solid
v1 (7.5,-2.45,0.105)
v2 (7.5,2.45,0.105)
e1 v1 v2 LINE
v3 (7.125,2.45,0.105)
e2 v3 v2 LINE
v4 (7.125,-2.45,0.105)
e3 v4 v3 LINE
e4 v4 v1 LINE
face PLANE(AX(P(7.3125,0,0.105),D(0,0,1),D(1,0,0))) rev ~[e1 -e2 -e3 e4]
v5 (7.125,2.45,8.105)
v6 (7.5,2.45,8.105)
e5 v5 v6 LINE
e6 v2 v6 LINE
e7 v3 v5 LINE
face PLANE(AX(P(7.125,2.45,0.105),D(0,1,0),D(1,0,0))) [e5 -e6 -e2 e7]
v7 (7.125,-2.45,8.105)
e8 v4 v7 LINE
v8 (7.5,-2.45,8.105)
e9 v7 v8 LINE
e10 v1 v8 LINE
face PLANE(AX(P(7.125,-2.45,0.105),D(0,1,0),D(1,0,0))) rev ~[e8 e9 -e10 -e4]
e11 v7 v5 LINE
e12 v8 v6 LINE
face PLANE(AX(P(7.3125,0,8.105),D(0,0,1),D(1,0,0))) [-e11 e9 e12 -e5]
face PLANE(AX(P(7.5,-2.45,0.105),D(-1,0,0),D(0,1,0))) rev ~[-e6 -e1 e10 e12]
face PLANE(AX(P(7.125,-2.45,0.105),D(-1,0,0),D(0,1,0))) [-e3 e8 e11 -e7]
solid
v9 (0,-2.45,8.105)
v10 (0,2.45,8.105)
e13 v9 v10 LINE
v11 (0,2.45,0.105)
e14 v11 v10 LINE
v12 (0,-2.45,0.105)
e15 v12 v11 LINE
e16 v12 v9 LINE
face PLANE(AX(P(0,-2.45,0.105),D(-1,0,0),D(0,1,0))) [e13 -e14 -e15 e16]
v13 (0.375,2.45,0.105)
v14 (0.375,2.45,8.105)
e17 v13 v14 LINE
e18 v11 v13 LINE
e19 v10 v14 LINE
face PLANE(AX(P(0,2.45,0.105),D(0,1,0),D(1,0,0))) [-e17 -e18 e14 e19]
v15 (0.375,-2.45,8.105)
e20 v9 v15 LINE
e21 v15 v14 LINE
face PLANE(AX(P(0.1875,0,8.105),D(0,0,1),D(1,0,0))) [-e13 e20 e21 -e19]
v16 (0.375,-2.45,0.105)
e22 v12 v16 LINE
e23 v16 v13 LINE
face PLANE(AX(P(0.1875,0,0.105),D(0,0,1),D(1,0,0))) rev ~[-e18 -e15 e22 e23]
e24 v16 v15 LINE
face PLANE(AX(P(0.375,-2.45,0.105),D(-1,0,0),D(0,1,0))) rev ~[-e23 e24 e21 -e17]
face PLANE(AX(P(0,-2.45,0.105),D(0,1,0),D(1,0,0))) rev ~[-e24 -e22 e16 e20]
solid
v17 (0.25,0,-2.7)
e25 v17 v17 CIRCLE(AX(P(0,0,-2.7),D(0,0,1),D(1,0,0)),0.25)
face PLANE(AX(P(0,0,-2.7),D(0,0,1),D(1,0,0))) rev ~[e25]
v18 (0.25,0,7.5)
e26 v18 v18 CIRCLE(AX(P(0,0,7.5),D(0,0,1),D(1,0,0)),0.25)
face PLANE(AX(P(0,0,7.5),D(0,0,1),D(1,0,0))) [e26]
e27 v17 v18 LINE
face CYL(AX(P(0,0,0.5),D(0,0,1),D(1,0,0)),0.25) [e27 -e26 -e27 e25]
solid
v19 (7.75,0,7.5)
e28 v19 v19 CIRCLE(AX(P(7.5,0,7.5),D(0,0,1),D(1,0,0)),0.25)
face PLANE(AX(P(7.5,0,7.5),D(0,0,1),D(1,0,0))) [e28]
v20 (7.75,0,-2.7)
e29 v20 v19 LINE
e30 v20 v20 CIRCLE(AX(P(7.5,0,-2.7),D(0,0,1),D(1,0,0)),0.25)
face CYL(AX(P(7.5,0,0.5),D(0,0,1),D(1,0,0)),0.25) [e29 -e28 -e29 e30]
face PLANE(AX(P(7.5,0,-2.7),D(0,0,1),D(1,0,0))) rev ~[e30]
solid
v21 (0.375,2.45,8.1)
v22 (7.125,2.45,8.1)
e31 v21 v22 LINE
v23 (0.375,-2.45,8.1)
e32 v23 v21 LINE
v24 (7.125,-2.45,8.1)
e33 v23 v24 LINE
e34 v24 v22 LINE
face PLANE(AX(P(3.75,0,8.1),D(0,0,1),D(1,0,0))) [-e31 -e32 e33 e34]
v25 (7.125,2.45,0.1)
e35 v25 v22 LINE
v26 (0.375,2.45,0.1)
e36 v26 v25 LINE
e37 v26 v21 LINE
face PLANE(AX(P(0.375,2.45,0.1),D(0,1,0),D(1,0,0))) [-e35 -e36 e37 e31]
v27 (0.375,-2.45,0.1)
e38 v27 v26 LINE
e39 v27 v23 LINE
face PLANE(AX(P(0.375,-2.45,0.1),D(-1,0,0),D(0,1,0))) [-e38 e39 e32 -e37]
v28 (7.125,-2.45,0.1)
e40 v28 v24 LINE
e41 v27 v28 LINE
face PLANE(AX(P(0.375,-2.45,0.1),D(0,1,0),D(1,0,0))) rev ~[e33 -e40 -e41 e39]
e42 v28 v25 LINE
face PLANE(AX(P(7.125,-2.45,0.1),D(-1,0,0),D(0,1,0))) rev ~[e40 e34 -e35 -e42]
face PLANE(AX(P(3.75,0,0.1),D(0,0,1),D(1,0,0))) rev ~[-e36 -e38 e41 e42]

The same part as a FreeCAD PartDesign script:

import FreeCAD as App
import Part
import Sketcher
Q = App.Units.Quantity


def add_polygon(sketch, points):
    """Adds a closed chain of lines whose ends are joined by coincident constraints."""
    first, n = sketch.GeometryCount, len(points)
    for a, b in zip(points, points[1:] + points[:1]):
        sketch.addGeometry(Part.LineSegment(App.Vector(*a, 0), App.Vector(*b, 0)), False)
    for i in range(n):
        sketch.addConstraint(Sketcher.Constraint("Coincident", first + i, 2, first + (i + 1) % n, 1))

doc = App.newDocument("Part")
body = doc.addObject("PartDesign::Body", "Body")

# Sketch on XY plane
sketch1 = body.newObject("Sketcher::SketchObject", "Sketch")
sketch1.AttachmentSupport = (doc.getObject("XY_Plane"), [""])
sketch1.MapMode = "FlatFace"
sketch1.AttachmentOffset = App.Placement(App.Vector(0, 0, 0.1), App.Rotation())
add_polygon(sketch1, [(0.4, 2.5), (0.4, -2.5), (7.1, -2.5), (7.1, 2.5)])  # lines 0-3
sketch1.addConstraint([
    Sketcher.Constraint("Vertical", 0),
    Sketcher.Constraint("Horizontal", 1),
    Sketcher.Constraint("Vertical", 2),
    Sketcher.Constraint("Horizontal", 3),
    Sketcher.Constraint("DistanceY", 0, 2, 0, 1, Q("4.9 mm")),
    Sketcher.Constraint("DistanceX", 1, 1, 1, 2, Q("6.75 mm")),
    Sketcher.Constraint("DistanceY", 0, 2, -1, 1, Q("2.45 mm")),
    Sketcher.Constraint("DistanceX", -1, 1, 0, 2, Q("0.375 mm")),
])
pad1 = body.newObject("PartDesign::Pad", "Pad")
pad1.Profile = sketch1
pad1.Length = 8
body2 = doc.addObject("PartDesign::Body", "Body001")
body2.AllowCompound = True

# Sketch on XY plane
sketch2 = body2.newObject("Sketcher::SketchObject", "Sketch001")
sketch2.AttachmentSupport = (doc.getObject("XY_Plane001"), [""])
sketch2.MapMode = "FlatFace"
sketch2.AttachmentOffset = App.Placement(App.Vector(0, 0, 0.5), App.Rotation())
sketch2.addGeometry([
    Part.Circle(App.Vector(0, 0, 0), App.Vector(0, 0, 1), 0.25),
    Part.Circle(App.Vector(7.5, 0, 0), App.Vector(0, 0, 1), 0.25),
], False)
sketch2.addConstraint([
    Sketcher.Constraint("Coincident", 0, 3, -1, 1),
    Sketcher.Constraint("Equal", 0, 1),
    Sketcher.Constraint("PointOnObject", 1, 3, -1),
    Sketcher.Constraint("Diameter", 0, Q("0.5 mm")),
    Sketcher.Constraint("DistanceX", -1, 1, 1, 3, Q("7.5 mm")),
])
pad2 = body2.newObject("PartDesign::Pad", "Pad001")
pad2.Profile = sketch2
pad2.Type = "TwoLengths"
pad2.Length = 7
pad2.Length2 = 3.2
body3 = doc.addObject("PartDesign::Body", "Body002")
body3.AllowCompound = True

# Sketch on XY plane
sketch3 = body3.newObject("Sketcher::SketchObject", "Sketch002")
sketch3.AttachmentSupport = (doc.getObject("XY_Plane002"), [""])
sketch3.MapMode = "FlatFace"
sketch3.AttachmentOffset = App.Placement(App.Vector(0, 0, 0.105), App.Rotation())
add_polygon(sketch3, [(0, 2.45), (0, -2.45), (0.38, -2.45), (0.38, 2.45)])  # lines 0-3
add_polygon(sketch3, [(7.12, 2.45), (7.12, -2.45), (7.5, -2.45), (7.5, 2.45)])  # lines 4-7
sketch3.addConstraint([
    Sketcher.Constraint("Vertical", 0),
    Sketcher.Constraint("Horizontal", 1),
    Sketcher.Constraint("Vertical", 2),
    Sketcher.Constraint("Horizontal", 3),
    Sketcher.Constraint("Vertical", 4),
    Sketcher.Constraint("Horizontal", 5),
    Sketcher.Constraint("Vertical", 6),
    Sketcher.Constraint("Horizontal", 7),
    Sketcher.Constraint("Symmetric", 0, 2, 3, 2, -1, 1),
    Sketcher.Constraint("Horizontal", 1, 2, 4, 2),
    Sketcher.Constraint("Horizontal", 3, 2, 6, 2),
    Sketcher.Constraint("Equal", 3, 5),
    Sketcher.Constraint("DistanceY", 0, 2, 0, 1, Q("4.9 mm")),
    Sketcher.Constraint("DistanceX", -1, 1, 5, 2, Q("7.5 mm")),
    Sketcher.Constraint("DistanceX", 1, 1, 1, 2, Q("0.375 mm")),
])
pad3 = body3.newObject("PartDesign::Pad", "Pad002")
pad3.Profile = sketch3
pad3.Length = 8

doc.recompute()
